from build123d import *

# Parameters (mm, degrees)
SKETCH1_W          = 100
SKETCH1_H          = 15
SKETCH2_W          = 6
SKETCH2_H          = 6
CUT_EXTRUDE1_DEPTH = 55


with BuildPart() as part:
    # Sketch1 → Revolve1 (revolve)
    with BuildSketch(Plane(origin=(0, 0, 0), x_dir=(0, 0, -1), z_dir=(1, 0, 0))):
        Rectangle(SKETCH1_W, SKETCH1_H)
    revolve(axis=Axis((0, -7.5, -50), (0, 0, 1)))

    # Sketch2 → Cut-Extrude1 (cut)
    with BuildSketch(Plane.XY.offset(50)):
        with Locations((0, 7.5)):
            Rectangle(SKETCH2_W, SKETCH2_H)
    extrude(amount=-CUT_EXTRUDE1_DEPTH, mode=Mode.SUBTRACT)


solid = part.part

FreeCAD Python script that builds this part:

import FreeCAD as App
import Part
import Sketcher

V = App.Vector


def add_polygon(sketch, points):
    """Adds a closed chain of lines whose ends are joined by coincident constraints."""
    first, n = sketch.GeometryCount, len(points)
    for a, b in zip(points, points[1:] + points[:1]):
        sketch.addGeometry(Part.LineSegment(App.Vector(*a, 0), App.Vector(*b, 0)), False)
    for i in range(n):
        sketch.addConstraint(Sketcher.Constraint("Coincident", first + i, 2, first + (i + 1) % n, 1))

doc = App.newDocument("Part")
body = doc.addObject("PartDesign::Body", "Body")

sketch1 = body.newObject("Sketcher::SketchObject", "Sketch")
sketch1.AttachmentSupport = (doc.getObject("YZ_Plane"), [""])
sketch1.MapMode = "FlatFace"
add_polygon(sketch1, [(8, 50), (-8, 50), (-8, -50), (8, -50)])
sketch1.addGeometry(Part.LineSegment(V(-8, -50, 0), V(-8, 50, 0)), True)
sketch1.addConstraint(Sketcher.Constraint("Horizontal", 0))
sketch1.addConstraint(Sketcher.Constraint("Vertical", 1))
sketch1.addConstraint(Sketcher.Constraint("Horizontal", 2))
sketch1.addConstraint(Sketcher.Constraint("Vertical", 3))
sketch1.addConstraint(Sketcher.Constraint("Vertical", 4))
sketch1.addConstraint(Sketcher.Constraint("Coincident", 4, 1, 1, 2))
sketch1.addConstraint(Sketcher.Constraint("Symmetric", 0, 2, 2, 2, -1, 1))
sketch1.addConstraint(Sketcher.Constraint("Horizontal", 3, 2, 4, 2))
sketch1.addConstraint(Sketcher.Constraint("DistanceX", 0, 2, 0, 1, 15.0))
sketch1.addConstraint(Sketcher.Constraint("DistanceY", 1, 2, 1, 1, 100.0))
revolution = body.newObject("PartDesign::Revolution", "Revolution")
revolution.Profile = sketch1
revolution.ReferenceAxis = (sketch1, ["Axis0"])
revolution.Angle = 360

sketch2 = body.newObject("Sketcher::SketchObject", "Sketch001")
sketch2.AttachmentSupport = (doc.getObject("XY_Plane"), [""])
sketch2.MapMode = "FlatFace"
sketch2.AttachmentOffset = App.Placement(V(0, 0, 50), App.Rotation())
add_polygon(sketch2, [(-3, 10), (-3, 4), (3, 4), (3, 10)])
sketch2.addConstraint(Sketcher.Constraint("Vertical", 0))
sketch2.addConstraint(Sketcher.Constraint("Horizontal", 1))
sketch2.addConstraint(Sketcher.Constraint("Vertical", 2))
sketch2.addConstraint(Sketcher.Constraint("Horizontal", 3))
sketch2.addConstraint(Sketcher.Constraint("Equal", 3, 0))
sketch2.addConstraint(Sketcher.Constraint("DistanceX", 1, 1, 1, 2, 6.0))
sketch2.addConstraint(Sketcher.Constraint("DistanceX", 0, 2, -1, 1, 3.0))
sketch2.addConstraint(Sketcher.Constraint("DistanceY", -1, 1, 0, 2, 4.5))
pocket1 = body.newObject("PartDesign::Pocket", "Pocket")
pocket1.Profile = sketch2
pocket1.Length = 55

doc.recompute()
